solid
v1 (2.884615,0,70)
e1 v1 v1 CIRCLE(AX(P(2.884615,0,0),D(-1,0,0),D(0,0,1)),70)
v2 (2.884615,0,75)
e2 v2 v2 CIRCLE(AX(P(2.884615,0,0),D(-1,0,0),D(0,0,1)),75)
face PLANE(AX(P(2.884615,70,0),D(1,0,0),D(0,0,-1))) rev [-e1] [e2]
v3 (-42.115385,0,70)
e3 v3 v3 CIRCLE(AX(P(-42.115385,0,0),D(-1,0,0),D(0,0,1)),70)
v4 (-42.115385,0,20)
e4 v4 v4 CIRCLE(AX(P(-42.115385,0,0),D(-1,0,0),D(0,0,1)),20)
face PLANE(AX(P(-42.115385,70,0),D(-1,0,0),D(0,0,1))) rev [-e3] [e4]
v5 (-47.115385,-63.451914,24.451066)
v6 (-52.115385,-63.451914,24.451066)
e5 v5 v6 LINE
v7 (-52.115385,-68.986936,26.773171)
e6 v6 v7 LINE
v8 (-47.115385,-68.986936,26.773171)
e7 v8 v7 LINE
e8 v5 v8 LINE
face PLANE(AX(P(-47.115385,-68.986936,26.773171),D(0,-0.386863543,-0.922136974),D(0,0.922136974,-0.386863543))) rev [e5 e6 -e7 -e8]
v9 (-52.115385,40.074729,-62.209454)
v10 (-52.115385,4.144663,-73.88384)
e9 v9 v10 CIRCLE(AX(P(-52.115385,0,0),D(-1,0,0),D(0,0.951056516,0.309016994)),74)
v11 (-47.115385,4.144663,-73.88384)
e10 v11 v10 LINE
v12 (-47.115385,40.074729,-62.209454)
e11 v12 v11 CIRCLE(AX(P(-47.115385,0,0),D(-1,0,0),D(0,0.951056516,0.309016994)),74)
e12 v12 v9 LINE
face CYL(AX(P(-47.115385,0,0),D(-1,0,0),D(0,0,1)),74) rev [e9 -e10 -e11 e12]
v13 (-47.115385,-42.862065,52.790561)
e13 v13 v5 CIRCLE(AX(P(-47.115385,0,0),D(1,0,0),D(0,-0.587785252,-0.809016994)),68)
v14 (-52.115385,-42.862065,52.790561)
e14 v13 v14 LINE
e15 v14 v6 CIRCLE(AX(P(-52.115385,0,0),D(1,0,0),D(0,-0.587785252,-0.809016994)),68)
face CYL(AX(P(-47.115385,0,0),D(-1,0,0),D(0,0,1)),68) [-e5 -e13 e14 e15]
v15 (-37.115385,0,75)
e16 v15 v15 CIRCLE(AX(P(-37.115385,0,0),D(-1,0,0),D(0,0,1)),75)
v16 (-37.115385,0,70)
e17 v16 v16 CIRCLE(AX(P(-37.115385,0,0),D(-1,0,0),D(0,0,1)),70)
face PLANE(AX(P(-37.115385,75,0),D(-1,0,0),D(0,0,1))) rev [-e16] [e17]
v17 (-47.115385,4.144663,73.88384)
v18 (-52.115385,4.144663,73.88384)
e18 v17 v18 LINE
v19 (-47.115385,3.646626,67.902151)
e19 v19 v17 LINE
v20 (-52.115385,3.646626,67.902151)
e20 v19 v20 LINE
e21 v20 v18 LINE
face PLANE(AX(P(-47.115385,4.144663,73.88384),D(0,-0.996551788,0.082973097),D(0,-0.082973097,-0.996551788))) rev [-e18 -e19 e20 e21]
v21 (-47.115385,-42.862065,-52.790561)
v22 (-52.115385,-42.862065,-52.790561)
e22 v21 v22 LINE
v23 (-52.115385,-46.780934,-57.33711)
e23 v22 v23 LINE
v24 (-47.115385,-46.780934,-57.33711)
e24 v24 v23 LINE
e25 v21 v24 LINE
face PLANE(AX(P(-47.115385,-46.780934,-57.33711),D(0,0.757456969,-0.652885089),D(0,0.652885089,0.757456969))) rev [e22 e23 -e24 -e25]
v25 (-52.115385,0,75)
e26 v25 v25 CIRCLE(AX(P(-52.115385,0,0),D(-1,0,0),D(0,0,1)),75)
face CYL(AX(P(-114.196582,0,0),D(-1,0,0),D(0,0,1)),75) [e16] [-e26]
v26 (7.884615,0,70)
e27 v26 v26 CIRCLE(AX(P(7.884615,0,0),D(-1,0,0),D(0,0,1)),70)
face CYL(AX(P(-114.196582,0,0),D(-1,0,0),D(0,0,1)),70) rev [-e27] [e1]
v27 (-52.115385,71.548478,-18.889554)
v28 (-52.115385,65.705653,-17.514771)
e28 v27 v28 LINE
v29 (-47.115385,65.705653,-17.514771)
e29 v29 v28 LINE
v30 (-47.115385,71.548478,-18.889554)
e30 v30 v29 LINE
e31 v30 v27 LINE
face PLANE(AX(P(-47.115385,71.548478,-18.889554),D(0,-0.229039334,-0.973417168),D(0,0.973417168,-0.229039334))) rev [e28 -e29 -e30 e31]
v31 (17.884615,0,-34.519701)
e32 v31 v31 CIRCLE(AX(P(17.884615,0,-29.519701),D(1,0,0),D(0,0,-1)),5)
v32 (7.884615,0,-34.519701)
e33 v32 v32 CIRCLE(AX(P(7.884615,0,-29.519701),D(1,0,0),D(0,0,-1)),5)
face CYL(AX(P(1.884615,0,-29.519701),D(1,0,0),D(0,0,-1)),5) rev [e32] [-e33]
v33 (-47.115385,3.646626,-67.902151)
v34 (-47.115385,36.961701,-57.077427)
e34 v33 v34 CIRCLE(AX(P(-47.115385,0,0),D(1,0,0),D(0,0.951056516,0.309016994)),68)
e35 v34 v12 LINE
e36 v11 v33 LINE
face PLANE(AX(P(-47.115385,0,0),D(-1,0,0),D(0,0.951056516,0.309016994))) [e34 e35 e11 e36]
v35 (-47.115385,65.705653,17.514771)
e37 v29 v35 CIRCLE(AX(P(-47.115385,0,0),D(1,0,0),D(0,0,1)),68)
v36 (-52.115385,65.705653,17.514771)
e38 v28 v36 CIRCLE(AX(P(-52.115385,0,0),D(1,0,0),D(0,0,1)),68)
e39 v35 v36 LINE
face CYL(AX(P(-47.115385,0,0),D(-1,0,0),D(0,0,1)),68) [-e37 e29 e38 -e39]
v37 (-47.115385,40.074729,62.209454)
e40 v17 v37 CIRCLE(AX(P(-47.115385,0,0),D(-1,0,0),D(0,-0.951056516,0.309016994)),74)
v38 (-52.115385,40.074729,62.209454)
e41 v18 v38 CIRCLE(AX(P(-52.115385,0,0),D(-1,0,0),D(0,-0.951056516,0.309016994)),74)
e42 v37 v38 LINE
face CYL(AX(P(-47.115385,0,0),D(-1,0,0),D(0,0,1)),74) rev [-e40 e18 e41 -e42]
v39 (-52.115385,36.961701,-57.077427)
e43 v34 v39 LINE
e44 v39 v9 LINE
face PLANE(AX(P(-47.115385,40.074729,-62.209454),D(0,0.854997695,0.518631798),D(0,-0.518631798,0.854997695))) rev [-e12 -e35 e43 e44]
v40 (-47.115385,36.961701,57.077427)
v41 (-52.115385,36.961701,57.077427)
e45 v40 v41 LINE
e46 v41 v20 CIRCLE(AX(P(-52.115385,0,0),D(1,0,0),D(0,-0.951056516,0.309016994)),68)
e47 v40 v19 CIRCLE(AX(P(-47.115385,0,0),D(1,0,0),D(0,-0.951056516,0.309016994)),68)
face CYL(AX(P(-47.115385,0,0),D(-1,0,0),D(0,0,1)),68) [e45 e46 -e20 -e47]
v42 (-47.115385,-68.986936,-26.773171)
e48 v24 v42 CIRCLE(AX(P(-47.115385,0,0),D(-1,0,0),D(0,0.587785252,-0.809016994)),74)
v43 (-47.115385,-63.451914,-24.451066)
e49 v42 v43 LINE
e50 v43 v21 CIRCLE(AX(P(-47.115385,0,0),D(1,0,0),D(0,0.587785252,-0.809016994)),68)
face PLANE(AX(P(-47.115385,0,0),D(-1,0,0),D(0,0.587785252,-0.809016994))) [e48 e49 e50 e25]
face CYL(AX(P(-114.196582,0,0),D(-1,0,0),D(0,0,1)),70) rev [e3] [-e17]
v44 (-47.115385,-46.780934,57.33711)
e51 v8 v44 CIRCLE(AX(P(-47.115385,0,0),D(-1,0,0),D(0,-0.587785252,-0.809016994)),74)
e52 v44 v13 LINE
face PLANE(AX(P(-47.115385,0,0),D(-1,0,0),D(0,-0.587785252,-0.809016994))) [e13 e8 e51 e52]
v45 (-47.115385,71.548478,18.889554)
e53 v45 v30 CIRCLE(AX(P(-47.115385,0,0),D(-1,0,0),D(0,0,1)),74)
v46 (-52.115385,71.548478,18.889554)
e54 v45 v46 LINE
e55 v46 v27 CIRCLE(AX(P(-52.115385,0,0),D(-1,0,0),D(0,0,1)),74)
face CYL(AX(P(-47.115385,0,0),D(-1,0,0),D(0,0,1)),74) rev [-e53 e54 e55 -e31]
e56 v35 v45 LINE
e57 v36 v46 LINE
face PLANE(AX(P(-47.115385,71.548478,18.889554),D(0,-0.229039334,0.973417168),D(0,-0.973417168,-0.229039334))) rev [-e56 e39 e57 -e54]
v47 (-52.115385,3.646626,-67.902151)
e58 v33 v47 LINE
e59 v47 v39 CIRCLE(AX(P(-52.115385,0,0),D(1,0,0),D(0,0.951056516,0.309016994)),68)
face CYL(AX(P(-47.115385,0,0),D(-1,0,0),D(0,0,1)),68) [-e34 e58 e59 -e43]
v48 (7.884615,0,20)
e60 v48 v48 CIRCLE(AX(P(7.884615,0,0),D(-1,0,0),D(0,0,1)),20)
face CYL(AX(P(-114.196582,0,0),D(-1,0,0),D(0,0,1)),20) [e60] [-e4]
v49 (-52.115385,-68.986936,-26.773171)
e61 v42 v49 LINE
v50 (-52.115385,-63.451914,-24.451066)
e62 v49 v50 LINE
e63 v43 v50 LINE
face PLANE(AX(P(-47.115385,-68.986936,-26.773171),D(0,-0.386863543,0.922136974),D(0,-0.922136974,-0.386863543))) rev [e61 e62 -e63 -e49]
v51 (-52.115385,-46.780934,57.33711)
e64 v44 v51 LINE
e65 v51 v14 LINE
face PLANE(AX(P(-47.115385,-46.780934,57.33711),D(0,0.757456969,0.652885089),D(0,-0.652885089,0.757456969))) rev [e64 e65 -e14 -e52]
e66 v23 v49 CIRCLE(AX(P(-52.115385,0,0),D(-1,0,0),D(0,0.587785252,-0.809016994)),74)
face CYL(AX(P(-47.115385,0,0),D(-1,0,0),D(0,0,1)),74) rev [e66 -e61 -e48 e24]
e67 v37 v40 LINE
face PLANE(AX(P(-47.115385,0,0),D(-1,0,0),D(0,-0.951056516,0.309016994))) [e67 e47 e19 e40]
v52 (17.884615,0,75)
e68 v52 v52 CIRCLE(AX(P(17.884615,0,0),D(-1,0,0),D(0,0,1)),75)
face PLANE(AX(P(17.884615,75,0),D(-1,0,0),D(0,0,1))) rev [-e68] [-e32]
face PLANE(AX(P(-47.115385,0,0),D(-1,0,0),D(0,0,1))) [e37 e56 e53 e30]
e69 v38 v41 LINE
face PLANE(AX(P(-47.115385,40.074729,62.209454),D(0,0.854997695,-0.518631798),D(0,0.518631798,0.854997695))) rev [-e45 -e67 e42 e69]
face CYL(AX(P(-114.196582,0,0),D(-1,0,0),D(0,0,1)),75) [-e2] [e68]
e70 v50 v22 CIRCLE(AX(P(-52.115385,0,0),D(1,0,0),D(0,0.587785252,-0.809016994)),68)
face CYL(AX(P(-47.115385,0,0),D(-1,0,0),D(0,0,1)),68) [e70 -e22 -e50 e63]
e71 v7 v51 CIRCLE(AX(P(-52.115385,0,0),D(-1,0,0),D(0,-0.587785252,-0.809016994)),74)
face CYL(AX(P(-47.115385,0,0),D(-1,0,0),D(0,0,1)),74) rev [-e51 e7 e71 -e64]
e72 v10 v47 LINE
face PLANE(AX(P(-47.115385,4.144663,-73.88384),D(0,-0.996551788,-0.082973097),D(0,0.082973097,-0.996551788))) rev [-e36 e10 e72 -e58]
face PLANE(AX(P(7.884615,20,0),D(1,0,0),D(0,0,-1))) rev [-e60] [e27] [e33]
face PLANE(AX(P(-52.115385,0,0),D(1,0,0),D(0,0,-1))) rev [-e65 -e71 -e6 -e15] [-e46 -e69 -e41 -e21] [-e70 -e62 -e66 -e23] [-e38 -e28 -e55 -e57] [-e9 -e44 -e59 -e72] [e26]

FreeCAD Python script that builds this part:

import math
import FreeCAD as App
import Part
import Sketcher
from FreeCAD import Vector
Q = App.Units.Quantity


def add_polygon(sketch, points):
    """Adds a closed chain of lines whose ends are joined by coincident constraints."""
    first, n = sketch.GeometryCount, len(points)
    for a, b in zip(points, points[1:] + points[:1]):
        sketch.addGeometry(Part.LineSegment(App.Vector(*a, 0), App.Vector(*b, 0)), False)
    for i in range(n):
        sketch.addConstraint(Sketcher.Constraint("Coincident", first + i, 2, first + (i + 1) % n, 1))

doc = App.newDocument("Part")
body = doc.addObject("PartDesign::Body", "Body")

sketch1 = body.newObject("Sketcher::SketchObject", "Sketch")
sketch1.AttachmentSupport = (doc.getObject("XY_Plane"), [""])
sketch1.MapMode = "FlatFace"
add_polygon(sketch1, [(-52, 0), (18, 0), (18, 75), (3, 75), (3, 70), (8, 70), (8, 20), (-42, 20), (-42, 70), (-37, 70), (-37, 75), (-52, 75)])
sketch1.addConstraint([
    Sketcher.Constraint("Horizontal", 0),
    Sketcher.Constraint("Vertical", 1),
    Sketcher.Constraint("Horizontal", 2),
    Sketcher.Constraint("Vertical", 3),
    Sketcher.Constraint("Horizontal", 4),
    Sketcher.Constraint("Vertical", 5),
    Sketcher.Constraint("Horizontal", 6),
    Sketcher.Constraint("Vertical", 7),
    Sketcher.Constraint("Horizontal", 8),
    Sketcher.Constraint("Vertical", 9),
    Sketcher.Constraint("Horizontal", 10),
    Sketcher.Constraint("Vertical", 11),
    Sketcher.Constraint("PointOnObject", 0, 2, -1),
    Sketcher.Constraint("Horizontal", 4, 2, 7, 2),
    Sketcher.Constraint("Horizontal", 2, 2, 9, 2),
    Sketcher.Constraint("Equal", 4, 8),
    Sketcher.Constraint("Equal", 2, 10),
    Sketcher.Constraint("Equal", 8, 3),
    Sketcher.Constraint("Equal", 6, 5),
    Sketcher.Constraint("DistanceX", 0, 1, 0, 2, Q("70 mm")),
    Sketcher.Constraint("DistanceX", 2, 2, 2, 1, Q("15 mm")),
    Sketcher.Constraint("DistanceX", 4, 1, 4, 2, Q("5 mm")),
    Sketcher.Constraint("DistanceY", 1, 1, 1, 2, Q("75 mm")),
    Sketcher.Constraint("DistanceX", -1, 1, 0, 2, Q("17.884615 mm")),
])
revolution = body.newObject("PartDesign::Revolution", "Revolution")
revolution.Profile = sketch1
revolution.ReferenceAxis = (sketch1, ["H_Axis"])
revolution.Angle = 360

sketch2 = body.newObject("Sketcher::SketchObject", "Sketch001")
sketch2.AttachmentSupport = (doc.getObject("YZ_Plane"), [""])
sketch2.MapMode = "FlatFace"
sketch2.AttachmentOffset = App.Placement(Vector(0, 0, -52.115385), App.Rotation())
sketch2.addGeometry([
    Part.LineSegment(Vector(72, -19, 0), Vector(66, -18, 0)),
    Part.ArcOfCircle(Part.Circle(Vector(0, 0, 0), Vector(0, 0, 1), 68), math.radians(-15), math.radians(15)),
    Part.LineSegment(Vector(66, 18, 0), Vector(72, 19, 0)),
    Part.ArcOfCircle(Part.Circle(Vector(0, 0, 0), Vector(0, 0, 1), 74), math.radians(-15), math.radians(15)),
], False)
sketch2.addConstraint([
    Sketcher.Constraint("Coincident", 0, 2, 1, 1),
    Sketcher.Constraint("Coincident", 1, 2, 2, 1),
    Sketcher.Constraint("Coincident", 2, 2, 3, 2),
    Sketcher.Constraint("Coincident", 3, 1, 0, 1),
    Sketcher.Constraint("Coincident", 1, 3, -1, 1),
    Sketcher.Constraint("Coincident", 3, 3, -1, 1),
    Sketcher.Constraint("Vertical", 0, 2, 1, 2),
    Sketcher.Constraint("Vertical", 2, 2, 3, 1),
    Sketcher.Constraint("Radius", 1, Q("68 mm")),
    Sketcher.Constraint("Radius", 3, Q("74 mm")),
    Sketcher.Constraint("DistanceY", 0, 2, -1, 1, Q("17.514771 mm")),
    Sketcher.Constraint("DistanceX", -1, 1, 2, 2, Q("71.548478 mm")),
])
pocket1 = body.newObject("PartDesign::Pocket", "Pocket")
pocket1.Profile = sketch2
pocket1.Length = 5
pocket1.Reversed = True
doc.recompute()

polarpattern = body.newObject("PartDesign::PolarPattern", "PolarPattern")
polarpattern.Originals = [pocket1]
polarpattern.Axis = (doc.getObject("X_Axis"), [""])
polarpattern.Angle = 360
polarpattern.Occurrences = 5
body.Tip = polarpattern

sketch3 = body.newObject("Sketcher::SketchObject", "Sketch002")
sketch3.AttachmentSupport = (doc.getObject("YZ_Plane"), [""])
sketch3.MapMode = "FlatFace"
sketch3.AttachmentOffset = App.Placement(Vector(0, 0, 17.884615), App.Rotation())
sketch3.addGeometry(Part.Circle(Vector(0, -30, 0), Vector(0, 0, 1), 5), False)
sketch3.addConstraint([
    Sketcher.Constraint("PointOnObject", 0, 3, -2),
    Sketcher.Constraint("Diameter", 0, Q("10 mm")),
    Sketcher.Constraint("DistanceY", 0, 3, -1, 1, Q("29.519701 mm")),
])
pocket2 = body.newObject("PartDesign::Pocket", "Pocket001")
pocket2.Profile = sketch3
pocket2.Length = 16

doc.recompute()
